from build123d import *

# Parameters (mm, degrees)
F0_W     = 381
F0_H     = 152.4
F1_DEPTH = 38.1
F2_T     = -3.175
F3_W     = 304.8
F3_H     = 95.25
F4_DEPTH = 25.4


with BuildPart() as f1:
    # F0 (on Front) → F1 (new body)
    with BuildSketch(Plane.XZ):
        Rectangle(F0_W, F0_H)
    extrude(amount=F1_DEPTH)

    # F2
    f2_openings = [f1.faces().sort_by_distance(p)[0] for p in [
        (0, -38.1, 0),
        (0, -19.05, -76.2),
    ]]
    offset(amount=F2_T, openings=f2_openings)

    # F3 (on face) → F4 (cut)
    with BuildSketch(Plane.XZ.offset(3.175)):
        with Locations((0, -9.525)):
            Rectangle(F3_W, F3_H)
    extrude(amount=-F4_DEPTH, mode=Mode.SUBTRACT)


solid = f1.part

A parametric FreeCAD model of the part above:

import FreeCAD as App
import Part
import Sketcher
Q = App.Units.Quantity


def faces_at(feature, points):
    """Names of the faces that lie closest to the given points."""
    faces = feature.Shape.Faces
    near = lambda p: min(range(len(faces)), key=lambda i: faces[i].distToShape(Part.Vertex(*p))[0])
    return sorted({f"Face{near(p) + 1}" for p in points})

doc = App.newDocument("Part")
body = doc.addObject("PartDesign::Body", "Body")

# Sketch on XZ plane
sketch1 = body.newObject("Sketcher::SketchObject", "Sketch")
sketch1.AttachmentSupport = (doc.getObject("XZ_Plane"), [""])
sketch1.MapMode = "FlatFace"
sketch1.addGeometry([
    Part.LineSegment(App.Vector(-190, 76, 0), App.Vector(-190, -76, 0)),
    Part.LineSegment(App.Vector(-190, -76, 0), App.Vector(190, -76, 0)),
    Part.LineSegment(App.Vector(190, -76, 0), App.Vector(190, 76, 0)),
    Part.LineSegment(App.Vector(190, 76, 0), App.Vector(-190, 76, 0)),
], False)
sketch1.addConstraint([
    Sketcher.Constraint("Coincident", 0, 2, 1, 1),
    Sketcher.Constraint("Coincident", 1, 2, 2, 1),
    Sketcher.Constraint("Coincident", 2, 2, 3, 1),
    Sketcher.Constraint("Coincident", 3, 2, 0, 1),
    Sketcher.Constraint("Vertical", 0),
    Sketcher.Constraint("Horizontal", 1),
    Sketcher.Constraint("Vertical", 2),
    Sketcher.Constraint("Horizontal", 3),
    Sketcher.Constraint("Symmetric", 0, 2, 2, 2, -1, 1),
    Sketcher.Constraint("DistanceX", 1, 1, 1, 2, Q("15 in")),
    Sketcher.Constraint("DistanceY", 0, 2, 0, 1, Q("6 in")),
])
pad1 = body.newObject("PartDesign::Pad", "Pad")
pad1.Profile = sketch1
pad1.Length = Q("1.5 in")
doc.recompute()

thickness = body.newObject("PartDesign::Thickness", "Thickness")
thickness.Base = (pad1, faces_at(pad1, [(0, -38.1, 0), (0, -19.05, -76.2)]))
thickness.Value = Q("0.125 in")
thickness.Reversed = True
thickness.Join = "Arc"

# Sketch on XZ plane
sketch2 = body.newObject("Sketcher::SketchObject", "Sketch001")
sketch2.AttachmentSupport = (doc.getObject("XZ_Plane"), [""])
sketch2.MapMode = "FlatFace"
sketch2.AttachmentOffset = App.Placement(App.Vector(0, 0, 0.125 * 25.4), App.Rotation())
sketch2.addGeometry([
    Part.LineSegment(App.Vector(-152, 38, 0), App.Vector(-152, -57, 0)),
    Part.LineSegment(App.Vector(-152, -57, 0), App.Vector(152, -57, 0)),
    Part.LineSegment(App.Vector(152, -57, 0), App.Vector(152, 38, 0)),
    Part.LineSegment(App.Vector(152, 38, 0), App.Vector(-152, 38, 0)),
], False)
sketch2.addConstraint([
    Sketcher.Constraint("Coincident", 0, 2, 1, 1),
    Sketcher.Constraint("Coincident", 1, 2, 2, 1),
    Sketcher.Constraint("Coincident", 2, 2, 3, 1),
    Sketcher.Constraint("Coincident", 3, 2, 0, 1),
    Sketcher.Constraint("Vertical", 0),
    Sketcher.Constraint("Horizontal", 1),
    Sketcher.Constraint("Vertical", 2),
    Sketcher.Constraint("Horizontal", 3),
    Sketcher.Constraint("DistanceX", 1, 1, 1, 2, Q("12 in")),
    Sketcher.Constraint("DistanceX", 0, 2, -1, 1, Q("6 in")),
    Sketcher.Constraint("DistanceY", 0, 2, 0, 1, Q("3.75 in")),
    Sketcher.Constraint("DistanceY", -1, 1, 2, 2, Q("1.5 in")),
])
pocket1 = body.newObject("PartDesign::Pocket", "Pocket")
pocket1.Profile = sketch2
pocket1.Length = Q("1 in")

doc.recompute()
